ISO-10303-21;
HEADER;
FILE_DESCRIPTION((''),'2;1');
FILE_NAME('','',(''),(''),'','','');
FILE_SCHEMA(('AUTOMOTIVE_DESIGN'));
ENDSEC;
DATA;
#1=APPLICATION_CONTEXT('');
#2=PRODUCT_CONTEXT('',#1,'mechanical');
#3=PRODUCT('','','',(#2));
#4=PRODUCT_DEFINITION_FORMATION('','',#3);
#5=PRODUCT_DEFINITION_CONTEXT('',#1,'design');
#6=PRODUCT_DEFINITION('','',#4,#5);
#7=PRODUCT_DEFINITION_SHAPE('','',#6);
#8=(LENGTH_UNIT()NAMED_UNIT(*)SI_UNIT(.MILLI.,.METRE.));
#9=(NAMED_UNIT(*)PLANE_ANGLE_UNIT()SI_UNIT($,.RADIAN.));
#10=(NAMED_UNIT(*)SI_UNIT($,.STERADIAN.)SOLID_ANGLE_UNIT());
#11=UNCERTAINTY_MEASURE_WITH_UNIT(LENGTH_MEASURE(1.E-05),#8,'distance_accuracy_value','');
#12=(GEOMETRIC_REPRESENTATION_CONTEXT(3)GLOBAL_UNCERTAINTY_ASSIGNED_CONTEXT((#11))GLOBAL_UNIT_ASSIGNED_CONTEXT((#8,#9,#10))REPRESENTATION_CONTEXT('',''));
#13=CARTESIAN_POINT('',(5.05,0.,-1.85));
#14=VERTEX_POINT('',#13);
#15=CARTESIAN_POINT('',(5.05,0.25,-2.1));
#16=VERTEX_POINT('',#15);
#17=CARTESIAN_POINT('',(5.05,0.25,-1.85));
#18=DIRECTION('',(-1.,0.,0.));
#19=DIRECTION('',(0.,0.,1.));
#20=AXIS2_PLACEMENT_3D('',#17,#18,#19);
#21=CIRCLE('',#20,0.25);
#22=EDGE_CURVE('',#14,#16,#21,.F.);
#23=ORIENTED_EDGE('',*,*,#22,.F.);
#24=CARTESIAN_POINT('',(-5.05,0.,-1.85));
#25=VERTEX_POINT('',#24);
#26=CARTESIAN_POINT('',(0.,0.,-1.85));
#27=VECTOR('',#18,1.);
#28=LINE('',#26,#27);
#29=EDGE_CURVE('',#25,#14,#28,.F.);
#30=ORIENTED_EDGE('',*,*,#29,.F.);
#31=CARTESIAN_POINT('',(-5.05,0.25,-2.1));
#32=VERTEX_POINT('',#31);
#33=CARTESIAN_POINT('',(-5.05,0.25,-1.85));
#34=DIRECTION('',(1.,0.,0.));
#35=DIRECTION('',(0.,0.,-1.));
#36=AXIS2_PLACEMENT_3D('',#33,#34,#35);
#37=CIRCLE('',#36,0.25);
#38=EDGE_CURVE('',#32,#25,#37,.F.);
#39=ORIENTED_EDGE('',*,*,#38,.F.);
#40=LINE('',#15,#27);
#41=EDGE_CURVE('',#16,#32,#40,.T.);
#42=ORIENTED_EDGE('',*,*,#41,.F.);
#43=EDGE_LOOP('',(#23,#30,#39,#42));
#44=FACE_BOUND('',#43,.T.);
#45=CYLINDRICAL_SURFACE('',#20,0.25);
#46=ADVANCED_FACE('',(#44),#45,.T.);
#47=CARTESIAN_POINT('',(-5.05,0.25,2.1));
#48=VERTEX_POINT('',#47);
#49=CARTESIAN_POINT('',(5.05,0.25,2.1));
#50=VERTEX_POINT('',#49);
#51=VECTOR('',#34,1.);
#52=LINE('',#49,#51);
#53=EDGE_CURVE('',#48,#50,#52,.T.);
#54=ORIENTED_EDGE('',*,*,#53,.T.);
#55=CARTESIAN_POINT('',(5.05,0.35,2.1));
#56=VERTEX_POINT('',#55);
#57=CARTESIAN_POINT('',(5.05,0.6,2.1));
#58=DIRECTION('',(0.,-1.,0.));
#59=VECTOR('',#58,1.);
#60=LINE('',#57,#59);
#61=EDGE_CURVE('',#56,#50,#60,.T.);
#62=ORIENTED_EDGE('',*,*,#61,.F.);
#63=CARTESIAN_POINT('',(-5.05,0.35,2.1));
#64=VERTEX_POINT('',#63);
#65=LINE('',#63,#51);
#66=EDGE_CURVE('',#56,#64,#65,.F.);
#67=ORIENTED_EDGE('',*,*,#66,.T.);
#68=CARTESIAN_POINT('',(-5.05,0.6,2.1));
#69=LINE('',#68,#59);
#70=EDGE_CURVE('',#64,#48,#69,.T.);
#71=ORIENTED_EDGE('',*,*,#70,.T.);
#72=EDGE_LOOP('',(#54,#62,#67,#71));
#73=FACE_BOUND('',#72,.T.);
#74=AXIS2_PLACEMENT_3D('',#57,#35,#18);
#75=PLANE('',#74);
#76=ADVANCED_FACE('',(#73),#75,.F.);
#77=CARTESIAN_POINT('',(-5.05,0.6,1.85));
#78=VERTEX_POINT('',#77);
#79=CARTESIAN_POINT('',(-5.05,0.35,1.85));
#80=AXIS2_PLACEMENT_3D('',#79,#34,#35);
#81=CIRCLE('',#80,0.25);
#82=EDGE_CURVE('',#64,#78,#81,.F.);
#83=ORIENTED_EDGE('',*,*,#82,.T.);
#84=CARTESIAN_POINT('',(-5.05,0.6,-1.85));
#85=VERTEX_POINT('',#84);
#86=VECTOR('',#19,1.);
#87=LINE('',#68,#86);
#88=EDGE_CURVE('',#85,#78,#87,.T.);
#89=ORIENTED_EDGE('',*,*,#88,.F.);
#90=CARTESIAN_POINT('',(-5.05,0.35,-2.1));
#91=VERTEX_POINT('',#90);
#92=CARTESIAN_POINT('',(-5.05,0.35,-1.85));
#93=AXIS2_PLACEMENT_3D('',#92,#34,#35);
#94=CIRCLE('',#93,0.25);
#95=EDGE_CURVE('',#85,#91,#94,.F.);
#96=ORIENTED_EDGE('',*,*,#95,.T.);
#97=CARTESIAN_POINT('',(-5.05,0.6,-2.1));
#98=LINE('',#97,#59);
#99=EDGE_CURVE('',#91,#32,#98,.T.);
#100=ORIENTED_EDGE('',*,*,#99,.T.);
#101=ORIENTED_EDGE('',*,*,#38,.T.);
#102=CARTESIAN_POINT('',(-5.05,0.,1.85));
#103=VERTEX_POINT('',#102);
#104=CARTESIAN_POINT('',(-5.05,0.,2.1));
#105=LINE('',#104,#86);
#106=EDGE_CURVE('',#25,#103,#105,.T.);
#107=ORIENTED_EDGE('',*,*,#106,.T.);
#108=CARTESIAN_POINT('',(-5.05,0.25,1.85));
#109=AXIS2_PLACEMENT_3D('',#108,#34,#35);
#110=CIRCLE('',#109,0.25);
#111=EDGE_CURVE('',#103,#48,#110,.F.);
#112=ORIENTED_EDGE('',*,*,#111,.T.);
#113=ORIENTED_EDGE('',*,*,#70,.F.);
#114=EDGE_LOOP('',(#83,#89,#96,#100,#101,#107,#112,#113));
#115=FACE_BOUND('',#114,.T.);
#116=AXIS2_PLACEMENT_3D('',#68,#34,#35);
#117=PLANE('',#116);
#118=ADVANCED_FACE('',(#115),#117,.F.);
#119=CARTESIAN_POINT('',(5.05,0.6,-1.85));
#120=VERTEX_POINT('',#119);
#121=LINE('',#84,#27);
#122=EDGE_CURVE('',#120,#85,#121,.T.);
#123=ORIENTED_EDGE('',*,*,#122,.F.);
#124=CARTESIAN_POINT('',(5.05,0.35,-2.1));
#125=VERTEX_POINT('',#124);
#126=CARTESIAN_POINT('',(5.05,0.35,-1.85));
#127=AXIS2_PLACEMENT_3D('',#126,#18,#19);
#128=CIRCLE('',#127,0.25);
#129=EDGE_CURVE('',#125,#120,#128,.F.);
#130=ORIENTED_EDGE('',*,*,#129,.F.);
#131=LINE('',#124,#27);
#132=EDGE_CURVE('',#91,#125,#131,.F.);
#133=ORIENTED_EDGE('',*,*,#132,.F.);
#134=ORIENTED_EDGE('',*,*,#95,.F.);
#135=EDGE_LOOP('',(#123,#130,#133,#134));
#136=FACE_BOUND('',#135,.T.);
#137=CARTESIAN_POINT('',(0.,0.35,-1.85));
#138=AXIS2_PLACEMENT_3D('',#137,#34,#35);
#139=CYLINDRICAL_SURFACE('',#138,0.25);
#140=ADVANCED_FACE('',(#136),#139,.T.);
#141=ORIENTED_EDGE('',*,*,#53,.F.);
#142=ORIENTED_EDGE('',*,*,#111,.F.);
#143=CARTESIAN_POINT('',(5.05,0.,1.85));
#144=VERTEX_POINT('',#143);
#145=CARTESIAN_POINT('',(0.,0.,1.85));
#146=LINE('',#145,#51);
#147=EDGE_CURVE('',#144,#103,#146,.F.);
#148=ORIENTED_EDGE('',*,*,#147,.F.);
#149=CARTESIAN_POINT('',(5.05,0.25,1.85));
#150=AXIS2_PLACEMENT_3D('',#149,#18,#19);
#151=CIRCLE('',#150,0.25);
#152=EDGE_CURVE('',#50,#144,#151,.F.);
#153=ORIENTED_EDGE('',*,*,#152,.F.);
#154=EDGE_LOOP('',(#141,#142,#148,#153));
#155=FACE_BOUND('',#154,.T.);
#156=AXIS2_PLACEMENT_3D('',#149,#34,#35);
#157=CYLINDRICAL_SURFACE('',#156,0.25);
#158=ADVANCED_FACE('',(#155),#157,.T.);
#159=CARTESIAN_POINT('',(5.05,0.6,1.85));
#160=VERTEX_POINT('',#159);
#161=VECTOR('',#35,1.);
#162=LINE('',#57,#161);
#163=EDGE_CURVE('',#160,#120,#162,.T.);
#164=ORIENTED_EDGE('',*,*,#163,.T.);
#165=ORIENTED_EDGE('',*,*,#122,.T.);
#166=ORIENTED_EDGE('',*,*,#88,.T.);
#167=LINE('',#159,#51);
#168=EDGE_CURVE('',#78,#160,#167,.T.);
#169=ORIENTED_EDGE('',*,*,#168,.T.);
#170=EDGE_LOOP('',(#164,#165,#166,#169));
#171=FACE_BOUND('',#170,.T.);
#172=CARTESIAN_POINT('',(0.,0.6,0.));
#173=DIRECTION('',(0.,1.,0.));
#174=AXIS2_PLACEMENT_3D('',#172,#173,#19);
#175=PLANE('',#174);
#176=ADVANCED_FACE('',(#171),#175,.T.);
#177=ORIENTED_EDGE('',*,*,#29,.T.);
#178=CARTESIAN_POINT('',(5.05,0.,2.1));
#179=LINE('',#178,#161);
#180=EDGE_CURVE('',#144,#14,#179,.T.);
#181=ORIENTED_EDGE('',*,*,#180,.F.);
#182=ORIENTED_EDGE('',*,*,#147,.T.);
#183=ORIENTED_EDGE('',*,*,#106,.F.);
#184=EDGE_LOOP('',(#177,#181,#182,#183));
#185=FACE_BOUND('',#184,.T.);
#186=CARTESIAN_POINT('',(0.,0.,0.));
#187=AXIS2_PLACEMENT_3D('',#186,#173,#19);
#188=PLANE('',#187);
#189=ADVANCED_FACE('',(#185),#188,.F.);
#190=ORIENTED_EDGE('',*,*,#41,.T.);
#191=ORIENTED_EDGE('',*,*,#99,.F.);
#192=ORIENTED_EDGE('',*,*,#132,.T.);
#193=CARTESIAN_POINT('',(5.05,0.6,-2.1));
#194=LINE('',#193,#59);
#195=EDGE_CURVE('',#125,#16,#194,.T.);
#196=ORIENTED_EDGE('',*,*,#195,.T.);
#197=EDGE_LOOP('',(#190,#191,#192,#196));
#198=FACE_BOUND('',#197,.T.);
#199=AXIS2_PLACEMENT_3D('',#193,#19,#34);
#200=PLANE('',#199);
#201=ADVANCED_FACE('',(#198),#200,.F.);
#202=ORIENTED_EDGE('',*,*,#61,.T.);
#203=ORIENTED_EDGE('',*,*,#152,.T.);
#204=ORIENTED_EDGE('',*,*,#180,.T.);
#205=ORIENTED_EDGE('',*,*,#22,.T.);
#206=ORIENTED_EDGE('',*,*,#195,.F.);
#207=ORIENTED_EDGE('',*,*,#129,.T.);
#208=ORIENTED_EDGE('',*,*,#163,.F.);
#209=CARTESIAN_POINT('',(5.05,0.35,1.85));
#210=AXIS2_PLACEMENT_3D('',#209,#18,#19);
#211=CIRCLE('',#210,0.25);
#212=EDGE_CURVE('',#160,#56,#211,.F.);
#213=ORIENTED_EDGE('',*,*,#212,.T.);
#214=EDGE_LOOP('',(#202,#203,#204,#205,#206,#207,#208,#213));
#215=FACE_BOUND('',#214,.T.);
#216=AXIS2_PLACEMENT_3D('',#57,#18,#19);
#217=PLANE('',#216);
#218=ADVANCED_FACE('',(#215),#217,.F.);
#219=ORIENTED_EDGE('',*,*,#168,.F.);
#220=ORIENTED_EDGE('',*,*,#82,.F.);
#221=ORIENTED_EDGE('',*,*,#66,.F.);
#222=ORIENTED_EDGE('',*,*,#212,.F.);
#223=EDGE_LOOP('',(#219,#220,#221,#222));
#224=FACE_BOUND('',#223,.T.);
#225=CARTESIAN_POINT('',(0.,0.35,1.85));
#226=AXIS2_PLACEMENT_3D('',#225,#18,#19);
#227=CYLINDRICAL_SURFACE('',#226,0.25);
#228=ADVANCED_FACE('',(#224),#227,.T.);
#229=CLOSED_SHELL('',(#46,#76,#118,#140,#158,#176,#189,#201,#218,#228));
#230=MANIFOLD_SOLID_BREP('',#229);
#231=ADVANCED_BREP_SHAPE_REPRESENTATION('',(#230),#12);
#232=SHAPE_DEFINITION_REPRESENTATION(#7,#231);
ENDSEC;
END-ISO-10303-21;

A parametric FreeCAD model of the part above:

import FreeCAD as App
import Part
import Sketcher
from FreeCAD import Vector


def edges_at(feature, points):
    """Names of the edges that pass closest to the given points."""
    edges = feature.Shape.Edges
    near = lambda p: min(range(len(edges)), key=lambda i: edges[i].distToShape(Part.Vertex(*p))[0])
    return sorted({f"Edge{near(p) + 1}" for p in points})


def add_polygon(sketch, points):
    """Adds a closed chain of lines whose ends are joined by coincident constraints."""
    first, n = sketch.GeometryCount, len(points)
    for a, b in zip(points, points[1:] + points[:1]):
        sketch.addGeometry(Part.LineSegment(App.Vector(*a, 0), App.Vector(*b, 0)), False)
    for i in range(n):
        sketch.addConstraint(Sketcher.Constraint("Coincident", first + i, 2, first + (i + 1) % n, 1))

doc = App.newDocument("Part")
params = doc.addObject("Spreadsheet::Sheet", "Params")
for row, (alias, value) in enumerate([
    ("sketch1_width", "10.1 mm"),
    ("sketch1_height", "4.2 mm"),
    ("pad1_length", "0.6 mm"),
    ("fillet_radius", "0.25 mm"),
    ("fillet2_radius", "0.25 mm"),
], start=1):
    params.set(f"A{row}", alias)
    params.set(f"B{row}", "=" + value)
    params.setAlias(f"B{row}", alias)

body = doc.addObject("PartDesign::Body", "Body")

# Sketch on XZ plane
sketch1 = body.newObject("Sketcher::SketchObject", "Sketch")
sketch1.AttachmentSupport = (doc.getObject("XZ_Plane"), [""])
sketch1.MapMode = "FlatFace"
add_polygon(sketch1, [(-5.05, -2.1), (-5.05, 2.1), (5.05, 2.1), (5.05, -2.1)])  # lines 0-3
sketch1.addConstraint(Sketcher.Constraint("Vertical", 0))
sketch1.addConstraint(Sketcher.Constraint("Horizontal", 1))
sketch1.addConstraint(Sketcher.Constraint("Vertical", 2))
sketch1.addConstraint(Sketcher.Constraint("Horizontal", 3))
sketch1.addConstraint(Sketcher.Constraint("Symmetric", 0, 2, 2, 2, -1, 1))
sketch1.addConstraint(Sketcher.Constraint("DistanceX", 1, 1, 1, 2, 10.1))
sketch1.addConstraint(Sketcher.Constraint("DistanceY", 0, 1, 0, 2, 4.2))
sketch1.setExpression("Constraints[9]", "Params.sketch1_width")
sketch1.setExpression("Constraints[10]", "Params.sketch1_height")
pad1 = body.newObject("PartDesign::Pad", "Pad")
pad1.Profile = sketch1
pad1.setExpression("Length", "Params.pad1_length")
pad1.Reversed = True
doc.recompute()

fillet = body.newObject("PartDesign::Fillet", "Fillet")
fillet.Base = (pad1, edges_at(pad1, [(0, 0.6, -2.1), (0, 0.6, 2.1)]))
fillet.setExpression("Radius", "Params.fillet_radius")
doc.recompute()

fillet2 = body.newObject("PartDesign::Fillet", "Fillet001")
fillet2.Base = (fillet, edges_at(fillet, [(0, 0, -2.1), (0, 0, 2.1)]))
fillet2.setExpression("Radius", "Params.fillet2_radius")

doc.recompute()
